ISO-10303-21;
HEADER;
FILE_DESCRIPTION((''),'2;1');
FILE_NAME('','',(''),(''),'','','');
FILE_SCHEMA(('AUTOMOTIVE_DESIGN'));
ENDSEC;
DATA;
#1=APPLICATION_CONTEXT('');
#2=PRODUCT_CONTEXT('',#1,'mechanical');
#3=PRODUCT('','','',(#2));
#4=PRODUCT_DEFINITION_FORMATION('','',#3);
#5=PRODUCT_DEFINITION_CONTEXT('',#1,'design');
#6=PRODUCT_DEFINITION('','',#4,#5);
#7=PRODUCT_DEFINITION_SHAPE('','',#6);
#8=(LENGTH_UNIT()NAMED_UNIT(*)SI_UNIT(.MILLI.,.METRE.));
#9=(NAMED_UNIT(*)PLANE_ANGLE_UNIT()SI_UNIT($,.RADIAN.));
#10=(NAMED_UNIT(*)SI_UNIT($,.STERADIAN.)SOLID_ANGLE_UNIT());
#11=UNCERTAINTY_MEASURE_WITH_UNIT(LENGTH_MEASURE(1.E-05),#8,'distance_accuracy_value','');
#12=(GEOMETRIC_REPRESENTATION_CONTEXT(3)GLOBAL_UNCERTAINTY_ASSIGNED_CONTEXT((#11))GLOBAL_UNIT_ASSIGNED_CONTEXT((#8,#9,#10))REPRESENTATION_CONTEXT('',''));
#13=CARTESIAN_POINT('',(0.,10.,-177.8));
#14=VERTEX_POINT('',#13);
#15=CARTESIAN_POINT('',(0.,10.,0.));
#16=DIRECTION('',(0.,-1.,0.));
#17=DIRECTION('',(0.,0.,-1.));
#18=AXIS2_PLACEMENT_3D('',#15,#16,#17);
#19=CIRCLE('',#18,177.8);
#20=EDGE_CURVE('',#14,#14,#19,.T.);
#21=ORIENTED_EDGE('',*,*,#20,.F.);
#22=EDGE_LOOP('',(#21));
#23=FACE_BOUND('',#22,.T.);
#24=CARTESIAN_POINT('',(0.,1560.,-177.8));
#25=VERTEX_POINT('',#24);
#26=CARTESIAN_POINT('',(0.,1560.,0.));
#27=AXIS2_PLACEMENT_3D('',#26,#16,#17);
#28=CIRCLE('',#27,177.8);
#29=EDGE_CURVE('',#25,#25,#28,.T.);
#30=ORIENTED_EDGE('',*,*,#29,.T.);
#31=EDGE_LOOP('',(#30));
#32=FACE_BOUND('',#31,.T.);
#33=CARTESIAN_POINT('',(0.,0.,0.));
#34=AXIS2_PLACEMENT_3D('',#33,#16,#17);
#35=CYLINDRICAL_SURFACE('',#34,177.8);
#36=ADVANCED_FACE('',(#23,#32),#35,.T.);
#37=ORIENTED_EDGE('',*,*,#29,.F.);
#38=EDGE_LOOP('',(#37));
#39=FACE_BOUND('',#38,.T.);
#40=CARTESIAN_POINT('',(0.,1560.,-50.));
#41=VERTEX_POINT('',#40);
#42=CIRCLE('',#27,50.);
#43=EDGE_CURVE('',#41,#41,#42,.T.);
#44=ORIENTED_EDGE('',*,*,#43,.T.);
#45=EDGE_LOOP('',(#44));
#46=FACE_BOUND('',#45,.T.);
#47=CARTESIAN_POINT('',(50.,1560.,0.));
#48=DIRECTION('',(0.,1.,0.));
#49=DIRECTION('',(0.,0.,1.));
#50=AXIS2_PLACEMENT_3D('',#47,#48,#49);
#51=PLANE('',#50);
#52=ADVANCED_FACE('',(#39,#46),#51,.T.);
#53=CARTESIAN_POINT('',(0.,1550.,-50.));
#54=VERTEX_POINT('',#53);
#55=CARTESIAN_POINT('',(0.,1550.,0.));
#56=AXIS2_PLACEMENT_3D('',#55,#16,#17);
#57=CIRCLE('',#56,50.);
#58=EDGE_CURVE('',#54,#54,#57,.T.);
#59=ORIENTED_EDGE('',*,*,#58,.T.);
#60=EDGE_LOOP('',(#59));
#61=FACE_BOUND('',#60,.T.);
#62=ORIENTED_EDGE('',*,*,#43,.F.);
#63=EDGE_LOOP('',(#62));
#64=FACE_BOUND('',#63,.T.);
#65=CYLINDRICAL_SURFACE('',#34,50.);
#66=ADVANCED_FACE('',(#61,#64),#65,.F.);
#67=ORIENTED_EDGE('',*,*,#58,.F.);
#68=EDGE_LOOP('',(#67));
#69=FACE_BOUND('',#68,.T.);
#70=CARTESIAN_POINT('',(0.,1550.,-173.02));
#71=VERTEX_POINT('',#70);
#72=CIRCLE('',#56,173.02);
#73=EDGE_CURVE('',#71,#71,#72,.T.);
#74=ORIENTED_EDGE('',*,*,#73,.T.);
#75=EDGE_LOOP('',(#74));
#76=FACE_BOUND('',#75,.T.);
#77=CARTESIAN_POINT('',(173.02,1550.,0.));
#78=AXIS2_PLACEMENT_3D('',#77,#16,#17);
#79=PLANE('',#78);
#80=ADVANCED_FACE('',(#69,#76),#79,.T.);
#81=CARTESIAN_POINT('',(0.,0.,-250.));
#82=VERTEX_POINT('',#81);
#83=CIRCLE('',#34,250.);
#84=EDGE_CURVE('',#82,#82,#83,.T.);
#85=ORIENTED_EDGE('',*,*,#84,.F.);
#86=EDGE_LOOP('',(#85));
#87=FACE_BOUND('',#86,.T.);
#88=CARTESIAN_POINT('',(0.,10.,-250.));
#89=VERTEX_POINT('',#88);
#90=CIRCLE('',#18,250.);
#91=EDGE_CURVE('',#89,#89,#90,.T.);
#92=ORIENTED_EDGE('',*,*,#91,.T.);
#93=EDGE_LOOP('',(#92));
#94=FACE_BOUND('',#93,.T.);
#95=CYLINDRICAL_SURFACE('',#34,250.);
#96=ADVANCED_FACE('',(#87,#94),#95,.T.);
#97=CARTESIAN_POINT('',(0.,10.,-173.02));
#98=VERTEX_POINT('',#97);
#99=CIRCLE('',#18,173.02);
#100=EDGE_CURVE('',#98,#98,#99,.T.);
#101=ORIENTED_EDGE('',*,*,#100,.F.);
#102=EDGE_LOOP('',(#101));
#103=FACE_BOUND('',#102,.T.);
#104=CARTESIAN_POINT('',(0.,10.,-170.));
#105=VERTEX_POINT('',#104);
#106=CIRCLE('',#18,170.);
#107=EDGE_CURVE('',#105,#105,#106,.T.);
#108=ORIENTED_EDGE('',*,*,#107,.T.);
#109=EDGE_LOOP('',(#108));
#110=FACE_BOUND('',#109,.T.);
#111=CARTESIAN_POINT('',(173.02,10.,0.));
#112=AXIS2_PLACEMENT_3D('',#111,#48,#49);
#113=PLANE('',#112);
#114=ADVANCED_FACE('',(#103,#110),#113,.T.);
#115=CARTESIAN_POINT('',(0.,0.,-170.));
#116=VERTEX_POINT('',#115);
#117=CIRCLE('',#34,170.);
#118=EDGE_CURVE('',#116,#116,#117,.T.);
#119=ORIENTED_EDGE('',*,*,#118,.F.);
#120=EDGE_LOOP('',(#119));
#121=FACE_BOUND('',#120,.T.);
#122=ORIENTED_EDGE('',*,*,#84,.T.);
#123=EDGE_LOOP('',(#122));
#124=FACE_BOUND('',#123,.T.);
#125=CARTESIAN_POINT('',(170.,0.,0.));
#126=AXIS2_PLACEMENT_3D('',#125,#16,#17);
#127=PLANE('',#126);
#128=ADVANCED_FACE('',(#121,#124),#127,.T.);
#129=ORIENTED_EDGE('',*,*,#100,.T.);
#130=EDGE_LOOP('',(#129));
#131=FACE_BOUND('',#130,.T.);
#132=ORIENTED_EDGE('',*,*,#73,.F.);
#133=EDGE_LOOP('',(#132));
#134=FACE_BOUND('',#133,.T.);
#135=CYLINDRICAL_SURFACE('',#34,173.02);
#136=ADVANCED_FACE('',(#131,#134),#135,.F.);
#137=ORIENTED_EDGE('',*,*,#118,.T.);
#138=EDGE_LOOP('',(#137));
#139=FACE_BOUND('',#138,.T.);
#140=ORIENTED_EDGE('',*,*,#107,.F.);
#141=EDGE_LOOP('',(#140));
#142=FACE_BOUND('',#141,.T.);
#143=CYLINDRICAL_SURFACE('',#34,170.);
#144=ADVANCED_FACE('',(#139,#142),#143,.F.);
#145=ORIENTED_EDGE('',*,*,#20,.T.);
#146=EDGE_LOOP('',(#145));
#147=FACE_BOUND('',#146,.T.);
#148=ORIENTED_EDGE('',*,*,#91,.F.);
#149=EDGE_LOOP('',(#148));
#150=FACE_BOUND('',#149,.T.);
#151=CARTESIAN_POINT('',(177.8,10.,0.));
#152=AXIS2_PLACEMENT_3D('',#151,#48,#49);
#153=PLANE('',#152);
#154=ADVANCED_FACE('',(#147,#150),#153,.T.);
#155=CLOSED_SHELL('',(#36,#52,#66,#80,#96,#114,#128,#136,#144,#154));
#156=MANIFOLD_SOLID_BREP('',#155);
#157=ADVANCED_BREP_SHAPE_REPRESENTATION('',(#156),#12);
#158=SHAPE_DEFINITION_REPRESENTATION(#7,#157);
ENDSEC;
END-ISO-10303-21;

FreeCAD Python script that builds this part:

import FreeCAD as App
import Part
import Sketcher

V = App.Vector


def add_polygon(sketch, points):
    """Adds a closed chain of lines whose ends are joined by coincident constraints."""
    first, n = sketch.GeometryCount, len(points)
    for a, b in zip(points, points[1:] + points[:1]):
        sketch.addGeometry(Part.LineSegment(App.Vector(*a, 0), App.Vector(*b, 0)), False)
    for i in range(n):
        sketch.addConstraint(Sketcher.Constraint("Coincident", first + i, 2, first + (i + 1) % n, 1))

doc = App.newDocument("Part")
body = doc.addObject("PartDesign::Body", "Body")

# Sketch on XY plane
sketch1 = body.newObject("Sketcher::SketchObject", "Sketch")
sketch1.AttachmentSupport = (doc.getObject("XY_Plane"), [""])
sketch1.MapMode = "FlatFace"
add_polygon(sketch1, [(177.8, 1560), (50, 1560), (50, 1550), (173, 1550), (173, 10), (170, 10), (170, 0), (250, 0), (250, 10), (177.8, 10)])  # lines 0-9
sketch1.addConstraint(Sketcher.Constraint("Horizontal", 0))
sketch1.addConstraint(Sketcher.Constraint("Vertical", 1))
sketch1.addConstraint(Sketcher.Constraint("Horizontal", 2))
sketch1.addConstraint(Sketcher.Constraint("Vertical", 3))
sketch1.addConstraint(Sketcher.Constraint("Horizontal", 4))
sketch1.addConstraint(Sketcher.Constraint("Vertical", 5))
sketch1.addConstraint(Sketcher.Constraint("Horizontal", 6))
sketch1.addConstraint(Sketcher.Constraint("Vertical", 7))
sketch1.addConstraint(Sketcher.Constraint("Horizontal", 8))
sketch1.addConstraint(Sketcher.Constraint("Vertical", 9))
sketch1.addConstraint(Sketcher.Constraint("PointOnObject", 5, 2, -1))
sketch1.addConstraint(Sketcher.Constraint("Horizontal", 4, 2, 7, 2))
sketch1.addConstraint(Sketcher.Constraint("Equal", 1, 5))
sketch1.addConstraint(Sketcher.Constraint("DistanceX", 6, 1, 6, 2, 80.0))
sketch1.addConstraint(Sketcher.Constraint("DistanceY", 1, 2, 1, 1, 10.0))
sketch1.addConstraint(Sketcher.Constraint("DistanceY", 3, 2, 3, 1, 1540.0))
sketch1.addConstraint(Sketcher.Constraint("DistanceX", 0, 2, 0, 1, 127.8))
sketch1.addConstraint(Sketcher.Constraint("DistanceX", 8, 2, 8, 1, 72.2))
sketch1.addConstraint(Sketcher.Constraint("DistanceX", -1, 1, 0, 2, 50.0))
sketch1.addConstraint(Sketcher.Constraint("DistanceX", 2, 1, 2, 2, 123.02))
revolution = body.newObject("PartDesign::Revolution", "Revolution")
revolution.Profile = sketch1
revolution.ReferenceAxis = (sketch1, ["V_Axis"])
revolution.Angle = 360

doc.recompute()
